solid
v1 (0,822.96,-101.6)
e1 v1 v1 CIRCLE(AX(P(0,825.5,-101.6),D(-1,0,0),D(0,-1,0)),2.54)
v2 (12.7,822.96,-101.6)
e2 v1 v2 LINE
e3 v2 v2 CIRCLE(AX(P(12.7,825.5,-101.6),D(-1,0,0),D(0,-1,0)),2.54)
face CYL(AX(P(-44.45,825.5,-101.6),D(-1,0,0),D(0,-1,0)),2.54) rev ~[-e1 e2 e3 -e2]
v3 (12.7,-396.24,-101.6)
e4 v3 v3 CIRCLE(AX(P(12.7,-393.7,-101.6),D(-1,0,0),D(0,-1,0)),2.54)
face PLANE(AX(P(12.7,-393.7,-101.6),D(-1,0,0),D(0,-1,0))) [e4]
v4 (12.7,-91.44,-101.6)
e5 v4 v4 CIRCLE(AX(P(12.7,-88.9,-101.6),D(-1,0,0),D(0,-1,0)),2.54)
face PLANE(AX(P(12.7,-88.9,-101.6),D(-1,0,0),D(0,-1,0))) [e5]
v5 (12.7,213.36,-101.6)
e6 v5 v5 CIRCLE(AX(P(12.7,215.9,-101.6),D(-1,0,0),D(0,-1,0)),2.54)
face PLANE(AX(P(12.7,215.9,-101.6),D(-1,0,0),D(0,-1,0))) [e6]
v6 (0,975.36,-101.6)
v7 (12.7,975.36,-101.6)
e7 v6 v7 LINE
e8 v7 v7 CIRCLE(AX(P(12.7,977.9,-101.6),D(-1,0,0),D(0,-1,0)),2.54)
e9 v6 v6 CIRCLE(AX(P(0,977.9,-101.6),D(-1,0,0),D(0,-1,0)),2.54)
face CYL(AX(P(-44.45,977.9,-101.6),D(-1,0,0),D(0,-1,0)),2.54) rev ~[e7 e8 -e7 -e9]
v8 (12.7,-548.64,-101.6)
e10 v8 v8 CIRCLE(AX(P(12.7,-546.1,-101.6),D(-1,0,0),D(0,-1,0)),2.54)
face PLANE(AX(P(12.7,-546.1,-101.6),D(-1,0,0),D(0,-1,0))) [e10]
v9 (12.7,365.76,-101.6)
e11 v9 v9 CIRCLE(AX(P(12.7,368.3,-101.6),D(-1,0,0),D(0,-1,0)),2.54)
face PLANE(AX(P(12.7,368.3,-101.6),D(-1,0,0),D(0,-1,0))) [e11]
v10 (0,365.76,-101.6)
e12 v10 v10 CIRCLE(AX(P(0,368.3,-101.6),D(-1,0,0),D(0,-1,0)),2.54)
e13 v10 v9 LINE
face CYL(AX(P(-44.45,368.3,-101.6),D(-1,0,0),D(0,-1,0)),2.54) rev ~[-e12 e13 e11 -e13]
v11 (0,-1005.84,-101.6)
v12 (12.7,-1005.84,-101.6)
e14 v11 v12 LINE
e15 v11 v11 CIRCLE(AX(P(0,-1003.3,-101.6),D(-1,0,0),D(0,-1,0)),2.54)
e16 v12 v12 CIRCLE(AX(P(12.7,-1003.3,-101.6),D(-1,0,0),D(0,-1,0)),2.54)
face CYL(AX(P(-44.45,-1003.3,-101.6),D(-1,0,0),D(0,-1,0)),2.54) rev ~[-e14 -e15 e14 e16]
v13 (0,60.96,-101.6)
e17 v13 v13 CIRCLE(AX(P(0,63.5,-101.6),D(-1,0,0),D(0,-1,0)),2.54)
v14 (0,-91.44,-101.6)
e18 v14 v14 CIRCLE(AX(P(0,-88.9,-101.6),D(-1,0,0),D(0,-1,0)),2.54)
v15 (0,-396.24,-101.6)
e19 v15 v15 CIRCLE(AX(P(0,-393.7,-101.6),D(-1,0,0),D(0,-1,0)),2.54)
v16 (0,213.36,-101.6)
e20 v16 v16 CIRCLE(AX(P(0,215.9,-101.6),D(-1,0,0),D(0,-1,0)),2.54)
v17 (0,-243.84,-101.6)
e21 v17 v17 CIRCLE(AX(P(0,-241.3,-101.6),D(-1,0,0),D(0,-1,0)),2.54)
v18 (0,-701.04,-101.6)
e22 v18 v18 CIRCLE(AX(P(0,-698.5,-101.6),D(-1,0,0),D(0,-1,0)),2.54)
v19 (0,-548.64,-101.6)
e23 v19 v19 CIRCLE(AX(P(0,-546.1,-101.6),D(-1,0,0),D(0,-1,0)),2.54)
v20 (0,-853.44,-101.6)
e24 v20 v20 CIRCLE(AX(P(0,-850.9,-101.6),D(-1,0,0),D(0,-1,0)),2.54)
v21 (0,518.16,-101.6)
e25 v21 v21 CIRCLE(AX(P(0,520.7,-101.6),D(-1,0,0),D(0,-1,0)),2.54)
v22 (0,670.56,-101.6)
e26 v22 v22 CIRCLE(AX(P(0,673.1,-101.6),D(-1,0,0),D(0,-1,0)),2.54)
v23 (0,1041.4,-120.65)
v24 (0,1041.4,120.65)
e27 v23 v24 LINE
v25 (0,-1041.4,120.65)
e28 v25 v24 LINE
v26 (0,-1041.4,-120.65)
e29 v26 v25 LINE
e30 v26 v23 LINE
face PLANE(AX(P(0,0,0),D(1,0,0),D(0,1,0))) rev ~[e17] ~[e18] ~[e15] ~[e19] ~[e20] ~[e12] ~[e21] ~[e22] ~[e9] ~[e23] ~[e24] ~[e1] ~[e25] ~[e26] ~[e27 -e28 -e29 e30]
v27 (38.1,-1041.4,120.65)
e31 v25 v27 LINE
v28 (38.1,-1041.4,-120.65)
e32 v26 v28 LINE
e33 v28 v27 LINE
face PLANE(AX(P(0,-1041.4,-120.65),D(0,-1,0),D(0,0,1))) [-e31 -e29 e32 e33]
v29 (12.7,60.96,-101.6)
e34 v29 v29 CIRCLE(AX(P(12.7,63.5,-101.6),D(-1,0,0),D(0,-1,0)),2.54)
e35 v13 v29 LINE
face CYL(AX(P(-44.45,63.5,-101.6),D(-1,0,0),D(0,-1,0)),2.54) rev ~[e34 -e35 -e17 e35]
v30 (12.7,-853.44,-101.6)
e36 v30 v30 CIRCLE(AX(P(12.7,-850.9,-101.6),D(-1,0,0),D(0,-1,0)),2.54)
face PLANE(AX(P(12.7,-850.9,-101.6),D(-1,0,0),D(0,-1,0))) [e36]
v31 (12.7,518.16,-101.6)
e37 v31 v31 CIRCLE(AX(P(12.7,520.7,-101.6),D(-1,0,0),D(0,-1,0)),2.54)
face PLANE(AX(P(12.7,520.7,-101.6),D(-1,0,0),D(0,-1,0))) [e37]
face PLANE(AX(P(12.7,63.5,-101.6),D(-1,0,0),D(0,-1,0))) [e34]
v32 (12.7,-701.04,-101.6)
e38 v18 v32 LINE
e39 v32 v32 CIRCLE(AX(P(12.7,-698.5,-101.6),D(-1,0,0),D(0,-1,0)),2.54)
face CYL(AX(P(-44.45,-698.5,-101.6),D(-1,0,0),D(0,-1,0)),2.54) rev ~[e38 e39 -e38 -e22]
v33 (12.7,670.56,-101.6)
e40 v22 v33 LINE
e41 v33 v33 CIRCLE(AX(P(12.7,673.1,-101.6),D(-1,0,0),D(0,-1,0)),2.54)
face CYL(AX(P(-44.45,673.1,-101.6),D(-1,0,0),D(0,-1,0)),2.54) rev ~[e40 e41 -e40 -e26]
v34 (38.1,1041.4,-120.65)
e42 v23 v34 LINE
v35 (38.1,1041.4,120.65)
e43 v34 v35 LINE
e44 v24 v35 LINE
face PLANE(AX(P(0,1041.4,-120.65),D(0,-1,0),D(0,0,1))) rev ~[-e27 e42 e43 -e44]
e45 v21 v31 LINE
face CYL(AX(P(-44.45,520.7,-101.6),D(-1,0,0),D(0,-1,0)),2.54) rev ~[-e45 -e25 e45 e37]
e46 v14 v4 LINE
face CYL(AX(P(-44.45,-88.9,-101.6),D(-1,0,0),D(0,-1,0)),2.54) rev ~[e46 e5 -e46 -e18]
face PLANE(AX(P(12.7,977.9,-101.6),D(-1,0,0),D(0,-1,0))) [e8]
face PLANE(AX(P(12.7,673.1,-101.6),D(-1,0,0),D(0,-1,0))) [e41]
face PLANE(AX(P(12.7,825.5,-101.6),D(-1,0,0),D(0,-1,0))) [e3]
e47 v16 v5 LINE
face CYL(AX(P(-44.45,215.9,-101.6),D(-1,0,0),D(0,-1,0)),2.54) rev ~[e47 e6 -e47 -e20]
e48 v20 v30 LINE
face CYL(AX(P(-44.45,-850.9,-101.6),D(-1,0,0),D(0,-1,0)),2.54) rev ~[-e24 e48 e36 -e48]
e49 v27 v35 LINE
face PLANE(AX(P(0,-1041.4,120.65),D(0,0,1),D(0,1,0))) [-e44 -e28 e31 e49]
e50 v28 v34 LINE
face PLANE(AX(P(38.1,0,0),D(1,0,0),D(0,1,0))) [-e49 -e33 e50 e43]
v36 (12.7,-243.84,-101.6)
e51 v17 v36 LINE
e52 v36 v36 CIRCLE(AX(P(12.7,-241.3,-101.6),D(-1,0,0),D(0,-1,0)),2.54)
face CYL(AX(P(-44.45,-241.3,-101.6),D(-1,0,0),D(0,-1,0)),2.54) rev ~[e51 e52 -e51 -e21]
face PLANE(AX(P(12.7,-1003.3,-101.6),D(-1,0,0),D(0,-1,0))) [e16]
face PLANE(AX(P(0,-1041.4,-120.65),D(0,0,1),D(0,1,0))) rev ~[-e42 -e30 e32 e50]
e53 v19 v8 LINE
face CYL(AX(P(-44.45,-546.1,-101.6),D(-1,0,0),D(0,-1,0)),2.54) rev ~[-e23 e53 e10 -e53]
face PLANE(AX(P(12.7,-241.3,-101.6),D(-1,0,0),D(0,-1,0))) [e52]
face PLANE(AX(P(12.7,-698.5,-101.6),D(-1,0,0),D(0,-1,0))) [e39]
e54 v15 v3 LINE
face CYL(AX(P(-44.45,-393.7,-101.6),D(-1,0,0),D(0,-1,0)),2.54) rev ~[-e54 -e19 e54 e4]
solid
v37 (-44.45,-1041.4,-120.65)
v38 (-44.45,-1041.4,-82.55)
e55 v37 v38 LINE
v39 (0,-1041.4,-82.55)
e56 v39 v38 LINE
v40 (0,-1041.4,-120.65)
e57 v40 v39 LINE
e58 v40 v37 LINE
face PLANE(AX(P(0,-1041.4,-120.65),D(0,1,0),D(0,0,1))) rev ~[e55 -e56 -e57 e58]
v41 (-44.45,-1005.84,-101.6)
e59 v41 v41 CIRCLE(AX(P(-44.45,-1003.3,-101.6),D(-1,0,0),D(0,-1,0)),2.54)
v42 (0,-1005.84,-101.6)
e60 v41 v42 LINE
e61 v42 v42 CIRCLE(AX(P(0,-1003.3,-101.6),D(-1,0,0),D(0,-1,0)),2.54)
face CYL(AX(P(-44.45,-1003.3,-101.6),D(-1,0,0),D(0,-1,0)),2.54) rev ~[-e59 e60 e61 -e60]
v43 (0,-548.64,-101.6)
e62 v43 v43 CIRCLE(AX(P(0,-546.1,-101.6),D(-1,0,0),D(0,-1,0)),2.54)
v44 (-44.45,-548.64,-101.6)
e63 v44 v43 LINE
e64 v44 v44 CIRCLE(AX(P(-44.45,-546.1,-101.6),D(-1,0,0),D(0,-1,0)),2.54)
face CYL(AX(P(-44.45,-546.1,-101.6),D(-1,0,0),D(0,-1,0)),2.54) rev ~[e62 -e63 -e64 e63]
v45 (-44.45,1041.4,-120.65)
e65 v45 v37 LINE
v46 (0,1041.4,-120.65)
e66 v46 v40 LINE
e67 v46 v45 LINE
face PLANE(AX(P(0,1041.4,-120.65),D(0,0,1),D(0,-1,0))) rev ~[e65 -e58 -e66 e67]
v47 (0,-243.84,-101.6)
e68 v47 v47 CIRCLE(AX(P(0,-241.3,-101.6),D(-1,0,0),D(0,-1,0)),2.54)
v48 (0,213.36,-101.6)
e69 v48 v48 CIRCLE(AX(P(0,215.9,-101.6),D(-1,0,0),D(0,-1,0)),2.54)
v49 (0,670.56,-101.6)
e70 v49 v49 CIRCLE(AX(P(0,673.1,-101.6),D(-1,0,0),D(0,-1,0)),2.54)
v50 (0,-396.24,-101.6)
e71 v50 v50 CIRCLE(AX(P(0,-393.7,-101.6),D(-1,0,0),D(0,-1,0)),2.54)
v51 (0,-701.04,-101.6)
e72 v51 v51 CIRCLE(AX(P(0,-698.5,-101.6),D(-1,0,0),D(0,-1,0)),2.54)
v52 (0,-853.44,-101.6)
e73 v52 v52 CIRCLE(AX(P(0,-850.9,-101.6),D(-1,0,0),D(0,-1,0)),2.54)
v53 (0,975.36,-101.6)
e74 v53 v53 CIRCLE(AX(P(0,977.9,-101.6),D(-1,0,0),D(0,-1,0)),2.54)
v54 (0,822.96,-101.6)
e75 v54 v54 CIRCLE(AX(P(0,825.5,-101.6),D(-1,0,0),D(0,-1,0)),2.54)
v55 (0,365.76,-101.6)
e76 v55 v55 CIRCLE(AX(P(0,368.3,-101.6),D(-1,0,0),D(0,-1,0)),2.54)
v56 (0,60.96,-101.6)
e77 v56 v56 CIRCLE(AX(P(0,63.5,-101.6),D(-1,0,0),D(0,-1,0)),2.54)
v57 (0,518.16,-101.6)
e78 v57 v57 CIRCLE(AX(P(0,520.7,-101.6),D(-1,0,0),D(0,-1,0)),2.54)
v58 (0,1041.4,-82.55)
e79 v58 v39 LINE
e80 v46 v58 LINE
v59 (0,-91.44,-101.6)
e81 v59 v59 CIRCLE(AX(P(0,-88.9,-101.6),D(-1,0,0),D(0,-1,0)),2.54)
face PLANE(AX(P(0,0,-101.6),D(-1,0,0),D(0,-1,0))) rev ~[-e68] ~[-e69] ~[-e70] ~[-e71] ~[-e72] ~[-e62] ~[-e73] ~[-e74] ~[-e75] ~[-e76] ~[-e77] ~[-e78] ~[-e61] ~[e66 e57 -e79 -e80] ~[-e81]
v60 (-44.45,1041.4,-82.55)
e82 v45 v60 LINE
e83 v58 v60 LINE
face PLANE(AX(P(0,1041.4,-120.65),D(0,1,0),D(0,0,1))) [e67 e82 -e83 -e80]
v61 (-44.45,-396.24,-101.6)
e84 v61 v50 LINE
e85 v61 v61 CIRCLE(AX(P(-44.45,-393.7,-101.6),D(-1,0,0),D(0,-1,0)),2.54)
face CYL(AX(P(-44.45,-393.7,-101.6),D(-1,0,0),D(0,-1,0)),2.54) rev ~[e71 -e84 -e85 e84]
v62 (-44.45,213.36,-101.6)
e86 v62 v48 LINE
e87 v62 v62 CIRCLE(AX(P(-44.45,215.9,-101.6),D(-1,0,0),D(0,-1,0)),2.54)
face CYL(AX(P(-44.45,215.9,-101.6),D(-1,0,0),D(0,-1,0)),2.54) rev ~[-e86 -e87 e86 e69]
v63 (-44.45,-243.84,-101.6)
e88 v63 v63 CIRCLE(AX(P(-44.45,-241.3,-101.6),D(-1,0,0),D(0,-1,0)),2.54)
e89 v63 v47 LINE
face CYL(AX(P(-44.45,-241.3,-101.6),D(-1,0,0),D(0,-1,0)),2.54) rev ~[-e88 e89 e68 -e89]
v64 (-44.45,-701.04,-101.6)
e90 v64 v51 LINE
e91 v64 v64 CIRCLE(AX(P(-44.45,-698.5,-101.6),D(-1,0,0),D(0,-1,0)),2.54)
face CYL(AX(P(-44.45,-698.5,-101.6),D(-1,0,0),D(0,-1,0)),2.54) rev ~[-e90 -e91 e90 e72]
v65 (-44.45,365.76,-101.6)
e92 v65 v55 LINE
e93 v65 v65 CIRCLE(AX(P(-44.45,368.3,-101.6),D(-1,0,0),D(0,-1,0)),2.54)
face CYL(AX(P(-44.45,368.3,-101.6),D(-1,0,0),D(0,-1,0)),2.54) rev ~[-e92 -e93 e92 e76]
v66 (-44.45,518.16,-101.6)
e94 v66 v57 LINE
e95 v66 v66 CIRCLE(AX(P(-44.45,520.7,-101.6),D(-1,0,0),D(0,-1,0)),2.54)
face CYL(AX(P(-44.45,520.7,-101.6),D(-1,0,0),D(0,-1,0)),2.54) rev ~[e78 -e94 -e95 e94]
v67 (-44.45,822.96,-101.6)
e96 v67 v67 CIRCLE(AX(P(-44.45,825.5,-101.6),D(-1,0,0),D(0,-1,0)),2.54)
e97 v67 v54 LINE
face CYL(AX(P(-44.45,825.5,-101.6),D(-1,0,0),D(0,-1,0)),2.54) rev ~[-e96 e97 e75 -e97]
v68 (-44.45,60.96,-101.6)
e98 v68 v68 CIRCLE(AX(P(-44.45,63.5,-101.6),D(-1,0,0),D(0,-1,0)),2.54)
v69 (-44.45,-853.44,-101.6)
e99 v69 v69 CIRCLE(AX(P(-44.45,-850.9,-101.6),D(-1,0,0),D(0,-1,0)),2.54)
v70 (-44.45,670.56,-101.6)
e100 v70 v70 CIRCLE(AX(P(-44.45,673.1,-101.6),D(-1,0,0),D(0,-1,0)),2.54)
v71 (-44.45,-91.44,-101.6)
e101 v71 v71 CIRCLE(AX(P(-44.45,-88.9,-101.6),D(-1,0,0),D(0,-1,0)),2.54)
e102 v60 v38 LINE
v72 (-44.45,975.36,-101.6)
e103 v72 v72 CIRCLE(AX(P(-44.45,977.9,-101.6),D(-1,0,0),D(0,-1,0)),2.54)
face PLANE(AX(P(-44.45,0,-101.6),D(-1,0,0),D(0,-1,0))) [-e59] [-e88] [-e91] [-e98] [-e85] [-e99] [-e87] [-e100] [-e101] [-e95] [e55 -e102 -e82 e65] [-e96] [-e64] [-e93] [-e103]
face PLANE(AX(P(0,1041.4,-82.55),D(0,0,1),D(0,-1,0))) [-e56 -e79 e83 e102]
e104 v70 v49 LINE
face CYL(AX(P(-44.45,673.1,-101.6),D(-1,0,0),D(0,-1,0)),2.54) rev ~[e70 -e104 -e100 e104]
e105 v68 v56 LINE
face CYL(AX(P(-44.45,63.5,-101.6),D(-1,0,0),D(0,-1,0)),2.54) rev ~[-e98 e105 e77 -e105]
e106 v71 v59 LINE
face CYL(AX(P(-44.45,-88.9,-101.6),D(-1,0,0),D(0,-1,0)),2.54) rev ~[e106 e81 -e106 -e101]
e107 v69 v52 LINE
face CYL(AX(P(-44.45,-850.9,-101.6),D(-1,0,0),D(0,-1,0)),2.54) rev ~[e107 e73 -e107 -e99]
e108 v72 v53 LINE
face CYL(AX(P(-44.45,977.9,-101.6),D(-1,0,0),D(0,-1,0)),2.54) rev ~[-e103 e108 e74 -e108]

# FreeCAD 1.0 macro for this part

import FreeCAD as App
import Part
import Sketcher

V = App.Vector
Q = App.Units.Quantity

doc = App.newDocument("Part")
body = doc.addObject("PartDesign::Body", "Body")

# Sketch on YZ plane
sketch1 = body.newObject("Sketcher::SketchObject", "Sketch")
sketch1.AttachmentSupport = (doc.getObject("YZ_Plane"), [""])
sketch1.MapMode = "FlatFace"
sketch1.addGeometry([
    Part.LineSegment(V(-1041.4, 120.65, 0), V(-1041.4, -120.65, 0)),
    Part.LineSegment(V(-1041.4, -120.65, 0), V(1041.4, -120.65, 0)),
    Part.LineSegment(V(1041.4, -120.65, 0), V(1041.4, 120.65, 0)),
    Part.LineSegment(V(1041.4, 120.65, 0), V(-1041.4, 120.65, 0)),
], False)
sketch1.addConstraint([
    Sketcher.Constraint("Coincident", 0, 2, 1, 1),
    Sketcher.Constraint("Coincident", 1, 2, 2, 1),
    Sketcher.Constraint("Coincident", 2, 2, 3, 1),
    Sketcher.Constraint("Coincident", 3, 2, 0, 1),
    Sketcher.Constraint("Vertical", 0),
    Sketcher.Constraint("Horizontal", 1),
    Sketcher.Constraint("Vertical", 2),
    Sketcher.Constraint("Horizontal", 3),
    Sketcher.Constraint("Symmetric", 0, 2, 2, 2, -1, 1),
    Sketcher.Constraint("DistanceX", 1, 1, 1, 2, Q("82 in")),
    Sketcher.Constraint("DistanceY", 0, 2, 0, 1, Q("9.5 in")),
])
pad1 = body.newObject("PartDesign::Pad", "Pad")
pad1.Profile = sketch1
pad1.Length = Q("1.5 in")
body2 = doc.addObject("PartDesign::Body", "Body001")

# Sketch on YZ plane
sketch2 = body2.newObject("Sketcher::SketchObject", "Sketch001")
sketch2.AttachmentSupport = (doc.getObject("YZ_Plane001"), [""])
sketch2.MapMode = "FlatFace"
sketch2.addGeometry([
    Part.LineSegment(V(1041.4, -82.55, 0), V(1041.4, -120.65, 0)),
    Part.LineSegment(V(1041.4, -120.65, 0), V(-1041.4, -120.65, 0)),
    Part.LineSegment(V(-1041.4, -120.65, 0), V(-1041.4, -82.55, 0)),
    Part.LineSegment(V(-1041.4, -82.55, 0), V(1041.4, -82.55, 0)),
], False)
sketch2.addConstraint([
    Sketcher.Constraint("Coincident", 0, 2, 1, 1),
    Sketcher.Constraint("Coincident", 1, 2, 2, 1),
    Sketcher.Constraint("Coincident", 2, 2, 3, 1),
    Sketcher.Constraint("Coincident", 3, 2, 0, 1),
    Sketcher.Constraint("Vertical", 0),
    Sketcher.Constraint("Horizontal", 1),
    Sketcher.Constraint("Vertical", 2),
    Sketcher.Constraint("Horizontal", 3),
    Sketcher.Constraint("DistanceX", 1, 2, 1, 1, Q("82 in")),
    Sketcher.Constraint("DistanceY", 0, 2, 0, 1, Q("1.5 in")),
    Sketcher.Constraint("DistanceX", -1, 1, 0, 2, Q("41 in")),
    Sketcher.Constraint("DistanceY", 0, 2, -1, 1, Q("4.75 in")),
])
pad2 = body2.newObject("PartDesign::Pad", "Pad001")
pad2.Profile = sketch2
pad2.Length = Q("1.75 in")
pad2.Reversed = True
body3 = doc.addObject("PartDesign::Body", "Body002")
body3.AllowCompound = True

# Sketch on YZ plane
sketch3 = body3.newObject("Sketcher::SketchObject", "Sketch002")
sketch3.AttachmentSupport = (doc.getObject("YZ_Plane002"), [""])
sketch3.MapMode = "FlatFace"
sketch3.AttachmentOffset = App.Placement(V(0, 0, -1.75 * 25.4), App.Rotation())
sketch3.addGeometry([
    Part.Circle(V(-1003.3, -101.6, 0), V(0, 0, 1), 2.54),  # 0
    Part.Circle(V(-850.9, -101.6, 0), V(0, 0, 1), 2.54),  # 1
    Part.Circle(V(-698.5, -101.6, 0), V(0, 0, 1), 2.54),  # 2
    Part.Circle(V(-546.1, -101.6, 0), V(0, 0, 1), 2.54),  # 3
    Part.Circle(V(-393.7, -101.6, 0), V(0, 0, 1), 2.54),  # 4
    Part.Circle(V(-241.3, -101.6, 0), V(0, 0, 1), 2.54),  # 5
    Part.Circle(V(-88.9, -101.6, 0), V(0, 0, 1), 2.54),  # 6
    Part.Circle(V(63.5, -101.6, 0), V(0, 0, 1), 2.54),  # 7
    Part.Circle(V(215.9, -101.6, 0), V(0, 0, 1), 2.54),  # 8
    Part.Circle(V(368.3, -101.6, 0), V(0, 0, 1), 2.54),  # 9
    Part.Circle(V(520.7, -101.6, 0), V(0, 0, 1), 2.54),  # 10
    Part.Circle(V(673.1, -101.6, 0), V(0, 0, 1), 2.54),  # 11
    Part.Circle(V(825.5, -101.6, 0), V(0, 0, 1), 2.54),  # 12
    Part.Circle(V(977.9, -101.6, 0), V(0, 0, 1), 2.54),  # 13
], False)
sketch3.addConstraint([
    Sketcher.Constraint("Equal", 0, 1),
    Sketcher.Constraint("Equal", 1, 2),
    Sketcher.Constraint("Equal", 2, 3),
    Sketcher.Constraint("Equal", 3, 4),
    Sketcher.Constraint("Equal", 4, 5),
    Sketcher.Constraint("Equal", 5, 6),
    Sketcher.Constraint("Equal", 6, 7),
    Sketcher.Constraint("Equal", 7, 8),
    Sketcher.Constraint("Equal", 8, 9),
    Sketcher.Constraint("Equal", 9, 10),
    Sketcher.Constraint("Equal", 10, 11),
    Sketcher.Constraint("Equal", 11, 12),
    Sketcher.Constraint("Equal", 12, 13),
    Sketcher.Constraint("Horizontal", 0, 3, 1, 3),
    Sketcher.Constraint("Horizontal", 1, 3, 2, 3),
    Sketcher.Constraint("Horizontal", 2, 3, 3, 3),
    Sketcher.Constraint("Horizontal", 3, 3, 4, 3),
    Sketcher.Constraint("Horizontal", 4, 3, 5, 3),
    Sketcher.Constraint("Horizontal", 5, 3, 6, 3),
    Sketcher.Constraint("Horizontal", 6, 3, 7, 3),
    Sketcher.Constraint("Horizontal", 7, 3, 8, 3),
    Sketcher.Constraint("Horizontal", 8, 3, 9, 3),
    Sketcher.Constraint("Horizontal", 9, 3, 10, 3),
    Sketcher.Constraint("Horizontal", 10, 3, 11, 3),
    Sketcher.Constraint("Horizontal", 11, 3, 12, 3),
    Sketcher.Constraint("Horizontal", 12, 3, 13, 3),
    Sketcher.Constraint("Diameter", 0, Q("0.2 in")),
    Sketcher.Constraint("DistanceY", 0, 3, -1, 1, Q("4 in")),
    Sketcher.Constraint("DistanceX", 0, 3, 1, 3, Q("6 in")),
    Sketcher.Constraint("DistanceX", 1, 3, 2, 3, Q("6 in")),
    Sketcher.Constraint("DistanceX", 2, 3, 3, 3, Q("6 in")),
    Sketcher.Constraint("DistanceX", 3, 3, 4, 3, Q("6 in")),
    Sketcher.Constraint("DistanceX", 4, 3, 5, 3, Q("6 in")),
    Sketcher.Constraint("DistanceX", 5, 3, 6, 3, Q("6 in")),
    Sketcher.Constraint("DistanceX", 6, 3, 7, 3, Q("6 in")),
    Sketcher.Constraint("DistanceX", 7, 3, 8, 3, Q("6 in")),
    Sketcher.Constraint("DistanceX", 8, 3, 9, 3, Q("6 in")),
    Sketcher.Constraint("DistanceX", 9, 3, 10, 3, Q("6 in")),
    Sketcher.Constraint("DistanceX", 10, 3, 11, 3, Q("6 in")),
    Sketcher.Constraint("DistanceX", 11, 3, 12, 3, Q("6 in")),
    Sketcher.Constraint("DistanceX", 12, 3, 13, 3, Q("6 in")),
    Sketcher.Constraint("DistanceX", 0, 3, -1, 1, Q("39.5 in")),
])
pad3 = body3.newObject("PartDesign::Pad", "Pad002")
pad3.Profile = sketch3
pad3.Length = Q("2.25 in")
doc.recompute()

body4 = doc.addObject("PartDesign::Body", "Body003")
body4.BaseFeature = body3
boolean = body.newObject("PartDesign::Boolean", "Boolean")
boolean.Type = "Cut"
boolean.addObjects([body4])
doc.recompute()

boolean2 = body2.newObject("PartDesign::Boolean", "Boolean001")
boolean2.Type = "Cut"
boolean2.addObjects([body3])

doc.recompute()
